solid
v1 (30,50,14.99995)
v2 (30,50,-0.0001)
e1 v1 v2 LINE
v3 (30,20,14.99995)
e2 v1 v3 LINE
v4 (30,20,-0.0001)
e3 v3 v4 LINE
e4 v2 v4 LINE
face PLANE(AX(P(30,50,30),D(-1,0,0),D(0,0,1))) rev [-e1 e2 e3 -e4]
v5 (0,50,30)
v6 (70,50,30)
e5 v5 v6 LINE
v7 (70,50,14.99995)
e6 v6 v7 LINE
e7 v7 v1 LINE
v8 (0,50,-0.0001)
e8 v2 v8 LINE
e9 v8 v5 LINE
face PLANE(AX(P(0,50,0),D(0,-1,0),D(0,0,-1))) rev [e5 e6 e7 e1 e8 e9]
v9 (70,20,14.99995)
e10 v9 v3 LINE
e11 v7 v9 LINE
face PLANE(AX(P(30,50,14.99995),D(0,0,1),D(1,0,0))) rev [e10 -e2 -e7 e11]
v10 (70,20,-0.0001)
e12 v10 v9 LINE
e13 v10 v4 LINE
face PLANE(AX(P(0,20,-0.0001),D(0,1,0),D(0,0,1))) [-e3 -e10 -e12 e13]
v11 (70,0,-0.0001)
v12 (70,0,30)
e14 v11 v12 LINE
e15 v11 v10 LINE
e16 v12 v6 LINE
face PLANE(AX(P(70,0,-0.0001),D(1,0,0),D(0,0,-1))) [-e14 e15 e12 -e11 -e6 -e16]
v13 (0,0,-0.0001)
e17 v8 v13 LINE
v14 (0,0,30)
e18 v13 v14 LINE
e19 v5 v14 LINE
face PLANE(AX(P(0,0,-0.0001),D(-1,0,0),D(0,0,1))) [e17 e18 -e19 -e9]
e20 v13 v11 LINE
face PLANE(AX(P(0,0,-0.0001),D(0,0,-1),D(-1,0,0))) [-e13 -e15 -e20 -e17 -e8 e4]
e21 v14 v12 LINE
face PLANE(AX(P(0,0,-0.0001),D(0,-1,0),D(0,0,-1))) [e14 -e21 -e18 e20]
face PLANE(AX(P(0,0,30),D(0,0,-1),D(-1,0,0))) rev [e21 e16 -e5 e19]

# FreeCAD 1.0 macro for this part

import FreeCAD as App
import Part
import Sketcher
from FreeCAD import Vector
Q = App.Units.Quantity


def add_polygon(sketch, points):
    """Adds a closed chain of lines whose ends are joined by coincident constraints."""
    first, n = sketch.GeometryCount, len(points)
    for a, b in zip(points, points[1:] + points[:1]):
        sketch.addGeometry(Part.LineSegment(App.Vector(*a, 0), App.Vector(*b, 0)), False)
    for i in range(n):
        sketch.addConstraint(Sketcher.Constraint("Coincident", first + i, 2, first + (i + 1) % n, 1))

doc = App.newDocument("Part")
body = doc.addObject("PartDesign::Body", "Body")

sketch1 = doc.addObject("Sketcher::SketchObject", "Sketch")
body.addObject(sketch1)
sketch1.AttachmentSupport = (doc.XY_Plane, [""])
sketch1.MapMode = "FlatFace"
add_polygon(sketch1, [(0, 20), (0, 0), (70, 0), (70, 20)])
sketch1.addConstraint([
    Sketcher.Constraint("Vertical", 0),
    Sketcher.Constraint("Horizontal", 1),
    Sketcher.Constraint("Vertical", 2),
    Sketcher.Constraint("Horizontal", 3),
    Sketcher.Constraint("Coincident", 0, 2, -1, 1),
    Sketcher.Constraint("DistanceX", 1, 1, 1, 2, Q("70 mm")),
    Sketcher.Constraint("DistanceY", 0, 2, 0, 1, Q("20 mm")),
])
pad1 = doc.addObject("PartDesign::Pad", "Pad")
body.addObject(pad1)
pad1.Profile = sketch1
pad1.Type = "TwoLengths"
pad1.Length = 30
pad1.Length2 = 0.0001

sketch2 = doc.addObject("Sketcher::SketchObject", "Sketch001")
body.addObject(sketch2)
sketch2.AttachmentSupport = (doc.XZ_Plane, [""])
sketch2.MapMode = "FlatFace"
sketch2.AttachmentOffset = App.Placement(Vector(0, 0, -20), App.Rotation())
add_polygon(sketch2, [(0, 0), (0, 30), (30, 30), (30, 0)])
sketch2.addConstraint([
    Sketcher.Constraint("Vertical", 0),
    Sketcher.Constraint("Horizontal", 1),
    Sketcher.Constraint("Vertical", 2),
    Sketcher.Constraint("Horizontal", 3),
    Sketcher.Constraint("PointOnObject", 0, 2, -2),
    Sketcher.Constraint("DistanceX", 1, 1, 1, 2, Q("30 mm")),
    Sketcher.Constraint("DistanceY", -1, 1, 0, 2, Q("30 mm")),
    Sketcher.Constraint("DistanceY", 0, 1, 0, 2, Q("30.0001 mm")),
])
pad2 = doc.addObject("PartDesign::Pad", "Pad001")
body.addObject(pad2)
pad2.Profile = sketch2
pad2.Length = 30
pad2.Reversed = True

sketch3 = doc.addObject("Sketcher::SketchObject", "Sketch002")
body.addObject(sketch3)
sketch3.AttachmentSupport = (doc.XZ_Plane, [""])
sketch3.MapMode = "FlatFace"
sketch3.AttachmentOffset = App.Placement(Vector(0, 0, -20), App.Rotation())
add_polygon(sketch3, [(30, 14.99995), (30, 30), (70, 30), (70, 14.99995)])
sketch3.addConstraint([
    Sketcher.Constraint("Vertical", 0),
    Sketcher.Constraint("Horizontal", 1),
    Sketcher.Constraint("Vertical", 2),
    Sketcher.Constraint("Horizontal", 3),
    Sketcher.Constraint("DistanceX", 1, 1, 1, 2, Q("40 mm")),
    Sketcher.Constraint("DistanceX", -1, 1, 0, 2, Q("30 mm")),
    Sketcher.Constraint("DistanceY", -1, 1, 0, 2, Q("30 mm")),
    Sketcher.Constraint("DistanceY", 0, 1, 0, 2, Q("15.00005 mm")),
])
pad3 = doc.addObject("PartDesign::Pad", "Pad002")
body.addObject(pad3)
pad3.Profile = sketch3
pad3.Length = 30
pad3.Reversed = True

doc.recompute()
